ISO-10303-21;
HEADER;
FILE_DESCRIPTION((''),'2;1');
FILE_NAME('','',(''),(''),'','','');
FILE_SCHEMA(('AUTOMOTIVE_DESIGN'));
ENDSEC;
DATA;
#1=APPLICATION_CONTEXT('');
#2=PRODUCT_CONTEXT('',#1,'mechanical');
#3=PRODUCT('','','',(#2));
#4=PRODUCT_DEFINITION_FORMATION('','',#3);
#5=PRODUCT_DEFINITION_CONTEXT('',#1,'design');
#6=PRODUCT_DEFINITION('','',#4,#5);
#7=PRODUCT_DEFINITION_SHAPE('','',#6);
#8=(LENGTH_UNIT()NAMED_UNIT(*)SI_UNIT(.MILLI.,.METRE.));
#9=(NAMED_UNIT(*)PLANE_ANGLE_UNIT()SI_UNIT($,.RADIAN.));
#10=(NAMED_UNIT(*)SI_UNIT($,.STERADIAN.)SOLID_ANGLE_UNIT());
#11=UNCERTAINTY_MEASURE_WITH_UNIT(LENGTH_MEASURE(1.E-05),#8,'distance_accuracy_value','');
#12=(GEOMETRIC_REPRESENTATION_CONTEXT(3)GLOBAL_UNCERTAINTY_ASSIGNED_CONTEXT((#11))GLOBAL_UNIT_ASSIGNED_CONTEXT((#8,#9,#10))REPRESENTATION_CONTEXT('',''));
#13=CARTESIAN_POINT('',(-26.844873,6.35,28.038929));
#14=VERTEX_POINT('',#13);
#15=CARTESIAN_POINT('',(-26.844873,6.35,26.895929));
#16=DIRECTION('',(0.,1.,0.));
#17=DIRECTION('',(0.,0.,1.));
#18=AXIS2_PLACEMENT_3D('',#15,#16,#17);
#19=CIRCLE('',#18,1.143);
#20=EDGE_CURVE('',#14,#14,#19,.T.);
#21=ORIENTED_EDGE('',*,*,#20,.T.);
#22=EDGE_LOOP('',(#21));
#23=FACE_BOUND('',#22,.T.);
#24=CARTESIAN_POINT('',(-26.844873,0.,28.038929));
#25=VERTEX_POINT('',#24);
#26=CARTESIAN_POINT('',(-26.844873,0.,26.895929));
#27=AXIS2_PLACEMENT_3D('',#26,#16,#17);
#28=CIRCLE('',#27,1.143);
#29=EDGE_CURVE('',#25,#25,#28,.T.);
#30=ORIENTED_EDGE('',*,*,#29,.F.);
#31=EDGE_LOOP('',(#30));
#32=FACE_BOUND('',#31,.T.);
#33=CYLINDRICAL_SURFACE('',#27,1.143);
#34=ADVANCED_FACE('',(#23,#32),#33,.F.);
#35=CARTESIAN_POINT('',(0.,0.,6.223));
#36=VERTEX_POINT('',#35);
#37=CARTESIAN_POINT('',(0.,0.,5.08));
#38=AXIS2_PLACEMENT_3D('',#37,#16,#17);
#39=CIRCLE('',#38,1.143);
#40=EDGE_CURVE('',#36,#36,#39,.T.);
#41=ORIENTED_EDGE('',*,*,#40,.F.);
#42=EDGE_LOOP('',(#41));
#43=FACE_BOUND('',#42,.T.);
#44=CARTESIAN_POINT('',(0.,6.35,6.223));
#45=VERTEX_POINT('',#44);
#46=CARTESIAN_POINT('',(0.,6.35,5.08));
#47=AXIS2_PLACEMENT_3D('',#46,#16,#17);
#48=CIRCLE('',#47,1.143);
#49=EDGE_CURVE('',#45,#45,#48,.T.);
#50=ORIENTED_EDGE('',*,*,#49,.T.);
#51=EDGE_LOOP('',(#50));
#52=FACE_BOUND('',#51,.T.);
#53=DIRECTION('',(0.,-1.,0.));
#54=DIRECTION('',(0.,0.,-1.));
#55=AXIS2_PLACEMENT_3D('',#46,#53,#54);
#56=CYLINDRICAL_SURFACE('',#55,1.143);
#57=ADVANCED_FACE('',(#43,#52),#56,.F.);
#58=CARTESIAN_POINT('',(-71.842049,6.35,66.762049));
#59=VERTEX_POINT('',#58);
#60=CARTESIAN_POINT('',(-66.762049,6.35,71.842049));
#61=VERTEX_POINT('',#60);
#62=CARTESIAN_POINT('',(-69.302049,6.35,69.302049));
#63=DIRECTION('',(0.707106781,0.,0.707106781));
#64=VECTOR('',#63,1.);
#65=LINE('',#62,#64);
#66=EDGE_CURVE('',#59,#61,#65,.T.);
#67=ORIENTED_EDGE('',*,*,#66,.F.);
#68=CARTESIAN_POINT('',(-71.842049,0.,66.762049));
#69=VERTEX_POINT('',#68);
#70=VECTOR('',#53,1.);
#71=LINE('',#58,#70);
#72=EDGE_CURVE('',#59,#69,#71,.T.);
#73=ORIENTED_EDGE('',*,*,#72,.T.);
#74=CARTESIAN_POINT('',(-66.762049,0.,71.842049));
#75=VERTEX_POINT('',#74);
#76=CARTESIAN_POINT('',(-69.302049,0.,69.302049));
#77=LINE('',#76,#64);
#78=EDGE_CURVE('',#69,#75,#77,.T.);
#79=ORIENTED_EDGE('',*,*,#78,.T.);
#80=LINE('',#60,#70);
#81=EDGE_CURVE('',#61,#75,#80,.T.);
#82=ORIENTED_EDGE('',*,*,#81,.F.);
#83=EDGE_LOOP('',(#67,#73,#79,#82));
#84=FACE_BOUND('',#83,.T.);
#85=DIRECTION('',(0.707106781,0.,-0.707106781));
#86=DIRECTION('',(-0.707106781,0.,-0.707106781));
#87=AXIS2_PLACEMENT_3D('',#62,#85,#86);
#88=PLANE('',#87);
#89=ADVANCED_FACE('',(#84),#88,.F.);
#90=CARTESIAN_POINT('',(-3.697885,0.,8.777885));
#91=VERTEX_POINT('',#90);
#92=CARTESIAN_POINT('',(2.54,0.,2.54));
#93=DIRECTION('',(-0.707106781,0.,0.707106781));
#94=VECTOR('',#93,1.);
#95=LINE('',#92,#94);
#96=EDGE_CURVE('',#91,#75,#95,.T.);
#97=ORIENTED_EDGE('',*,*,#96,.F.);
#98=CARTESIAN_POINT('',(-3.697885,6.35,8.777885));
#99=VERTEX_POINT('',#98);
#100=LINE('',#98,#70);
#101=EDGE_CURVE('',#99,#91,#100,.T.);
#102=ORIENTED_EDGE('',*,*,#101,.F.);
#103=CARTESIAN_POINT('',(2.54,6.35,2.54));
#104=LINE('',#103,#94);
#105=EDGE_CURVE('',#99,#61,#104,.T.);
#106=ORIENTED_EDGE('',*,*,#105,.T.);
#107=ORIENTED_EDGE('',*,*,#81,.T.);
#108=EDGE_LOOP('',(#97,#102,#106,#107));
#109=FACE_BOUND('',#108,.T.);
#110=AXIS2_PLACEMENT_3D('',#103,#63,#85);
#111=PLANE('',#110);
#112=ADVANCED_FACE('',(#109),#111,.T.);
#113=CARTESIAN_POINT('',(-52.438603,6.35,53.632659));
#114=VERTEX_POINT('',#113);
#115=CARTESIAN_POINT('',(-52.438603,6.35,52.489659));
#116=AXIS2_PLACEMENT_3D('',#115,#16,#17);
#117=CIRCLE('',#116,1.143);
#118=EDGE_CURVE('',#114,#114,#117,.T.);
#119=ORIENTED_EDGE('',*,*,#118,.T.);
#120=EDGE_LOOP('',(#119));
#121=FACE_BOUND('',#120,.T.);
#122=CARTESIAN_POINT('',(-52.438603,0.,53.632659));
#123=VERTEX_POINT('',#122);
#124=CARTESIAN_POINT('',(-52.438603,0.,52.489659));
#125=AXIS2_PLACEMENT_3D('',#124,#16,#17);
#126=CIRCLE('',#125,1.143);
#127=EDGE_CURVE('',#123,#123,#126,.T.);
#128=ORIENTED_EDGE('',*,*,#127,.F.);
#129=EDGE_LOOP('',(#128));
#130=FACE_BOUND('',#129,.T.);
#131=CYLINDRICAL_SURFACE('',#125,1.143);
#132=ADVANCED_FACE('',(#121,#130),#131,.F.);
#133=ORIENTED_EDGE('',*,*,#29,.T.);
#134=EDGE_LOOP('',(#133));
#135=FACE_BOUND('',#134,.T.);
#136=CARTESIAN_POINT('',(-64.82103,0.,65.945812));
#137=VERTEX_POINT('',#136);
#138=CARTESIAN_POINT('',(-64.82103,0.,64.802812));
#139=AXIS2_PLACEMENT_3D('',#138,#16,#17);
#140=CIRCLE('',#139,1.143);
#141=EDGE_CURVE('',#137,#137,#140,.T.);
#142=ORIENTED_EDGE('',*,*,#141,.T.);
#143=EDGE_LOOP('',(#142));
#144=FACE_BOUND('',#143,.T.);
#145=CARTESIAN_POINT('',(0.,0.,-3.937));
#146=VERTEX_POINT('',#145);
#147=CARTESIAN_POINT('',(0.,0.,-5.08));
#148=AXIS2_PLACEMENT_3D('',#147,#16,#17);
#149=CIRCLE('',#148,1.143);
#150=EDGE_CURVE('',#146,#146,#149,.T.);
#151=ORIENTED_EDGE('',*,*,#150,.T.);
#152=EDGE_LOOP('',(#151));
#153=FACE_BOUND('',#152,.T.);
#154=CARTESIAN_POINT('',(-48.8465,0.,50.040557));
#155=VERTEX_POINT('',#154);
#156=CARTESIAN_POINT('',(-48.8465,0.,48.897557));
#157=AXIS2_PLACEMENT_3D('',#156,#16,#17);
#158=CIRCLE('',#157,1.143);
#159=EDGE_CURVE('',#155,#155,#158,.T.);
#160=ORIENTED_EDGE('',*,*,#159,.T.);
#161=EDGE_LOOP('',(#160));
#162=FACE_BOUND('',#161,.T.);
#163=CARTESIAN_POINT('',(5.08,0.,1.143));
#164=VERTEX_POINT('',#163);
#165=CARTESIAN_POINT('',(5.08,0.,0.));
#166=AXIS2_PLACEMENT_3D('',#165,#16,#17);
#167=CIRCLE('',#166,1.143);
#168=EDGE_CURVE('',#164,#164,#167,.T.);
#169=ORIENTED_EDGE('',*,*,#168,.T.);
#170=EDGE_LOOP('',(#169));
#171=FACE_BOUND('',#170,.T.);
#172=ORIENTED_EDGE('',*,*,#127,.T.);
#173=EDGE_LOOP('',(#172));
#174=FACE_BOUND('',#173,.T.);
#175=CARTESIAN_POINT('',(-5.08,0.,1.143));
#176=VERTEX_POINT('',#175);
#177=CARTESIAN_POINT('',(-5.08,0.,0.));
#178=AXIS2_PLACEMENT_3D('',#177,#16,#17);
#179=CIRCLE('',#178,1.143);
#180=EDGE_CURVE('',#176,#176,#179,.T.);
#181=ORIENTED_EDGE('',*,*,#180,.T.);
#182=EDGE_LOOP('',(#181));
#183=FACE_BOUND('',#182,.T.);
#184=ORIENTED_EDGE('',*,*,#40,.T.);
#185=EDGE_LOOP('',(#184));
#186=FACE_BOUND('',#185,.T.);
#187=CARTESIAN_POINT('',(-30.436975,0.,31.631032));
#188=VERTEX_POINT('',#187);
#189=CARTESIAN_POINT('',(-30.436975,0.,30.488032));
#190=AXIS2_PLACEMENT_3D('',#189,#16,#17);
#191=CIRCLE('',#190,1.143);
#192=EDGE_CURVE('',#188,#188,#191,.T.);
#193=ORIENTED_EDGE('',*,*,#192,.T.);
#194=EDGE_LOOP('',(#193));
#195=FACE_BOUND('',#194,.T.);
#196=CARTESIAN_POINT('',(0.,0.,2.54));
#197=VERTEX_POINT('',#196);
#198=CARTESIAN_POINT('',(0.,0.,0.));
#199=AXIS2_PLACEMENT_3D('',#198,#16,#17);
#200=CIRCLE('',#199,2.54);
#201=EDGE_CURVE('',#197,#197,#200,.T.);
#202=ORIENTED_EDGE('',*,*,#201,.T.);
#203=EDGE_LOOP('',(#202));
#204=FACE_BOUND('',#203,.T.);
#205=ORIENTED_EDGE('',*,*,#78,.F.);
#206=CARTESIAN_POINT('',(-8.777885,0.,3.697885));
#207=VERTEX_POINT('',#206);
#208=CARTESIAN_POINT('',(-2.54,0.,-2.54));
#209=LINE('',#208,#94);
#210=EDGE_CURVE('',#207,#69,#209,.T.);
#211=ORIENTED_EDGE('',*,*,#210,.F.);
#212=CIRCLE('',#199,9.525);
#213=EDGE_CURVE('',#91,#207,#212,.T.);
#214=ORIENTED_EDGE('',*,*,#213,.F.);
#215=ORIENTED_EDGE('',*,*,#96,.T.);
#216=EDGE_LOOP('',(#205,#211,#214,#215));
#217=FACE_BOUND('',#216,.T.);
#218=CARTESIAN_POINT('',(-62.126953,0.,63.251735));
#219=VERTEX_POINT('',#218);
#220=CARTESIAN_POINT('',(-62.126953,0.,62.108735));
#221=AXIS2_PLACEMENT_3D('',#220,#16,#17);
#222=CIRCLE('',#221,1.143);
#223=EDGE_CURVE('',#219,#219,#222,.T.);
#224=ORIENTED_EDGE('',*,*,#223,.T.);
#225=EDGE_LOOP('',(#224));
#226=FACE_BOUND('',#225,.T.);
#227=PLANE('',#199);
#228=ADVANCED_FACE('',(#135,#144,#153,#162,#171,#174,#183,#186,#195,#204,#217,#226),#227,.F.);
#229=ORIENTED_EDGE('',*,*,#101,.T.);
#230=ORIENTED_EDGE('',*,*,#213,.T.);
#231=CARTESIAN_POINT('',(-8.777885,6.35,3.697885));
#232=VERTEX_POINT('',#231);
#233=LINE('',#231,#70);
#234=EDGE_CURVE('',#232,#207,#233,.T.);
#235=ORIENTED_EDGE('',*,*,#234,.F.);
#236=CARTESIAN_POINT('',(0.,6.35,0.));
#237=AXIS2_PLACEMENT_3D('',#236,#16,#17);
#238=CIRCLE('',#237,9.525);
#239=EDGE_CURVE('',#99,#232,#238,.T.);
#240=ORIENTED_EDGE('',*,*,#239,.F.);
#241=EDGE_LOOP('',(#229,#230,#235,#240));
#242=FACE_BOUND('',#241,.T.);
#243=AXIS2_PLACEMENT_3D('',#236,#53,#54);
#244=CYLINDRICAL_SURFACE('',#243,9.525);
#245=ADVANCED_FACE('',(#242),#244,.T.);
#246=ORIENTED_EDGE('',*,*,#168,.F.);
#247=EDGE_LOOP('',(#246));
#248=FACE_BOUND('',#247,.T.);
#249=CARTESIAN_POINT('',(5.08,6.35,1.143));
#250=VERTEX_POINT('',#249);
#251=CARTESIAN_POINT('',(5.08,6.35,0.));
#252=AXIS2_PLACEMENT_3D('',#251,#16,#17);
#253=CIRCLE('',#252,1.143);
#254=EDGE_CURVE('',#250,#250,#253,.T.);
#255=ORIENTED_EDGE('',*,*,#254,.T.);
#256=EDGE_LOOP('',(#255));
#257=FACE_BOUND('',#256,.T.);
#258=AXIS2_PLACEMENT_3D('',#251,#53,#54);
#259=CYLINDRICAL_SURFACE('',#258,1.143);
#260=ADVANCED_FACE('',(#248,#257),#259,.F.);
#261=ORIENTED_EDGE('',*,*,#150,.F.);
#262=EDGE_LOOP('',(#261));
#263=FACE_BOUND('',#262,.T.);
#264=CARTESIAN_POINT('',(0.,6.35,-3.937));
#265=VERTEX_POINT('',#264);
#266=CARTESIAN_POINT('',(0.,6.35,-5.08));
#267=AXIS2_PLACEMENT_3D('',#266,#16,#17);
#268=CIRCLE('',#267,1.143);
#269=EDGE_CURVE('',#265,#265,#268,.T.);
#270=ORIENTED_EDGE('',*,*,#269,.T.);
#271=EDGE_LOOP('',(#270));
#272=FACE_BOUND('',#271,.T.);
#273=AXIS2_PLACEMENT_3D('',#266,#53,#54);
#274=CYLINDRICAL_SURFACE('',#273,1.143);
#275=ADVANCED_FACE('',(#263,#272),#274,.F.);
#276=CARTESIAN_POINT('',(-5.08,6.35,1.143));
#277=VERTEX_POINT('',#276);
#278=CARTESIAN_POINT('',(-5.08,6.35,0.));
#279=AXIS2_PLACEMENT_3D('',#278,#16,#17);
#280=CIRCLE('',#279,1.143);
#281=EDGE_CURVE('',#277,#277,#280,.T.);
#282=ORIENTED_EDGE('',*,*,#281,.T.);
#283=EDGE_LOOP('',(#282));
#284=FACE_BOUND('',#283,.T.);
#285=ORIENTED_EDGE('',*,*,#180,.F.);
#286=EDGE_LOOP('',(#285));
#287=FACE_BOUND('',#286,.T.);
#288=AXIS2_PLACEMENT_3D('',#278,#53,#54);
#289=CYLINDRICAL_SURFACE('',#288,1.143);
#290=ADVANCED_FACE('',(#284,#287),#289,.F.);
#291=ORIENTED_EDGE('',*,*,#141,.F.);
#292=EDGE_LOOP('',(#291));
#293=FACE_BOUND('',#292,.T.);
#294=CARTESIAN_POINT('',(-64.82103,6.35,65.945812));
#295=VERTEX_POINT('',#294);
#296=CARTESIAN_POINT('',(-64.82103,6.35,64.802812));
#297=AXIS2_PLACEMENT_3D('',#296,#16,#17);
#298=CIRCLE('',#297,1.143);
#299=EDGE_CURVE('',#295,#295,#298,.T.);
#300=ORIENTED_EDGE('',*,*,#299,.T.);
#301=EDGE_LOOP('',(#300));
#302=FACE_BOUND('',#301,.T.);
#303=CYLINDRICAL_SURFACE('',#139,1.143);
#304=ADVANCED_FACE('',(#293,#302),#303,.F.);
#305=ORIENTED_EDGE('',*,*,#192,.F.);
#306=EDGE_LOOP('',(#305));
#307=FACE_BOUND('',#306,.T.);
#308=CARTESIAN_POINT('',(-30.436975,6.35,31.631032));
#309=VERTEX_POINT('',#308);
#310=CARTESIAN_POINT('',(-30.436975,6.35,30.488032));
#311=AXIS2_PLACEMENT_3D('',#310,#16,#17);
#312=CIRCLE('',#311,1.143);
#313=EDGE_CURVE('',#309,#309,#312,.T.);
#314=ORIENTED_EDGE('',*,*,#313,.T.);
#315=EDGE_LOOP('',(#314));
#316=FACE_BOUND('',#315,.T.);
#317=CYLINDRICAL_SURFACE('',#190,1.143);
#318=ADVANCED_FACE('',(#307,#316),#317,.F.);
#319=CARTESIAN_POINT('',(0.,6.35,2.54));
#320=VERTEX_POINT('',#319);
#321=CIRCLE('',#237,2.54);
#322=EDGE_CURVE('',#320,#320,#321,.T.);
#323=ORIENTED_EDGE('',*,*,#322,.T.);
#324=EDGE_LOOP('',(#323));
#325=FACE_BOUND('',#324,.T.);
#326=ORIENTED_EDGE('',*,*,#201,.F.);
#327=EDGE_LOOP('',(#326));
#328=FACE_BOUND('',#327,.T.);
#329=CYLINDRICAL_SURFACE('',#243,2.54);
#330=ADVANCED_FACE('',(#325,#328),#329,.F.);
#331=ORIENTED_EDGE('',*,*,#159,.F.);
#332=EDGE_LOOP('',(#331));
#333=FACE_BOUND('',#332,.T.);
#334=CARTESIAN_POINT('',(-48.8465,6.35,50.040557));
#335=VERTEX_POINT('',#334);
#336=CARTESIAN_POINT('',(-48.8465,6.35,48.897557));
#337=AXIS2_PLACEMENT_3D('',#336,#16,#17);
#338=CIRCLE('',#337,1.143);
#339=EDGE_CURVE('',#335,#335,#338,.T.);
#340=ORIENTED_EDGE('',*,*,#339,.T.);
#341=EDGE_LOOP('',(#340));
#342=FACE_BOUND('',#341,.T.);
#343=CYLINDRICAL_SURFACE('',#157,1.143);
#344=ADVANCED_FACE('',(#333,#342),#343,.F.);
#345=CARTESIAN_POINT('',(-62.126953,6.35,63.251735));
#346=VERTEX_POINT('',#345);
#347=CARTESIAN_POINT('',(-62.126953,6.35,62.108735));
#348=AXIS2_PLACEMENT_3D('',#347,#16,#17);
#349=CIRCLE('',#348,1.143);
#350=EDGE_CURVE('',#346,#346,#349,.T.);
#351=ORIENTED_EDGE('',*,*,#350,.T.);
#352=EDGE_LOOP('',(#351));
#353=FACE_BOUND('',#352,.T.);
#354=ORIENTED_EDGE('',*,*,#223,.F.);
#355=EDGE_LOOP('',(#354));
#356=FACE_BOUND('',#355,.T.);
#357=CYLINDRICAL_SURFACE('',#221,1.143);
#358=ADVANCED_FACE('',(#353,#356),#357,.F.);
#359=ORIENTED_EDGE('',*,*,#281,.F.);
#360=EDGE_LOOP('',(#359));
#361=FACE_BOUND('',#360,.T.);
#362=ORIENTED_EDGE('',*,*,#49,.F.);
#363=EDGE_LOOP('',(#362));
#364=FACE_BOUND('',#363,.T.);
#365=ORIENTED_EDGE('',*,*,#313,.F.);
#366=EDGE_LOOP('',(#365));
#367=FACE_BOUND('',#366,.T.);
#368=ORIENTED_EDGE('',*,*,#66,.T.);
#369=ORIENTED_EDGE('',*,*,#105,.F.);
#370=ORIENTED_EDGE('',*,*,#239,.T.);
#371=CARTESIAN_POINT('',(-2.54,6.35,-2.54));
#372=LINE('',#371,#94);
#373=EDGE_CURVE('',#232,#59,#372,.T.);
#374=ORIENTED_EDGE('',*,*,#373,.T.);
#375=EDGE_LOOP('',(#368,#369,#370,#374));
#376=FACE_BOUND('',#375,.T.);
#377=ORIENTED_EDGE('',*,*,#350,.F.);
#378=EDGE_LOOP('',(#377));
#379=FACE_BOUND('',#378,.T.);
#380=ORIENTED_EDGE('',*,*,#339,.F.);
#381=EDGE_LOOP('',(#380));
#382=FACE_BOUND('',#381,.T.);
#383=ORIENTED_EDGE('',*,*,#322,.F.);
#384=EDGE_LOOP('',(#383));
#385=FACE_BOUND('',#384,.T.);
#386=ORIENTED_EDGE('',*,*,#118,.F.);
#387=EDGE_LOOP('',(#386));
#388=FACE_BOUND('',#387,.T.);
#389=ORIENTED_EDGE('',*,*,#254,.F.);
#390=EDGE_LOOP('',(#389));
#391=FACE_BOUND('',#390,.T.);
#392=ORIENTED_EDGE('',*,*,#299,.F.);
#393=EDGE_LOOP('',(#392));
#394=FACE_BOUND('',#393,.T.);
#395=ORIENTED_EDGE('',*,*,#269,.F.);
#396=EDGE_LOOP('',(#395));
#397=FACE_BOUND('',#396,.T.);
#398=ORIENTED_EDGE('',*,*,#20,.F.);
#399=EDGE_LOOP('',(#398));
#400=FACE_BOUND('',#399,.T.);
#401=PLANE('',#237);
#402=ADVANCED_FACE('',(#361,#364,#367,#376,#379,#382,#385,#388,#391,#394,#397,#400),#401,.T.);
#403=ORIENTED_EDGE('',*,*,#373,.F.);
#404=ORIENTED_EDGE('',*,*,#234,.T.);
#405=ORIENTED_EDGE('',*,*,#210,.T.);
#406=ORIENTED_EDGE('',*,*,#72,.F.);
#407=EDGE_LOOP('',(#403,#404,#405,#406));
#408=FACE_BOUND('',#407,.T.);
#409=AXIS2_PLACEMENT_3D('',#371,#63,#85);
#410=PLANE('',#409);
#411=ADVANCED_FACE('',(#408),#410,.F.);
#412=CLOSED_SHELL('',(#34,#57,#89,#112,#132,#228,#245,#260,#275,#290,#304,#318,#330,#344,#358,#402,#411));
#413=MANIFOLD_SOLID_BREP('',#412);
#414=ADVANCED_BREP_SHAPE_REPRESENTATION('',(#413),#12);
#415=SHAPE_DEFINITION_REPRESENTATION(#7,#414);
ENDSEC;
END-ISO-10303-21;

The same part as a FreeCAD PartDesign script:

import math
import FreeCAD as App
import Part
import Sketcher
from FreeCAD import Vector
Q = App.Units.Quantity

doc = App.newDocument("Part")
body = doc.addObject("PartDesign::Body", "Body")

# Sketch on XZ plane
sketch1 = doc.addObject("Sketcher::SketchObject", "Sketch")
body.addObject(sketch1)
sketch1.AttachmentSupport = (doc.XZ_Plane, [""])
sketch1.MapMode = "FlatFace"
sketch1.addGeometry([
    Part.Circle(Vector(0, 0, 0), Vector(0, 0, 1), 9.5),  # 0
    Part.Circle(Vector(0, 5.1, 0), Vector(0, 0, 1), 1.1),  # 1
    Part.Circle(Vector(-5.1, 0, 0), Vector(0, 0, 1), 1.1),  # 2
    Part.Circle(Vector(0, 0, 0), Vector(0, 0, 1), 2.5),  # 3
    Part.Circle(Vector(5.1, 0, 0), Vector(0, 0, 1), 1.1),  # 4
    Part.Circle(Vector(0, -5.1, 0), Vector(0, 0, 1), 1.1),  # 5
], False)
sketch1.addConstraint([
    Sketcher.Constraint("Coincident", 0, 3, -1, 1),
    Sketcher.Constraint("Coincident", 3, 3, -1, 1),
    Sketcher.Constraint("Equal", 1, 2),
    Sketcher.Constraint("Equal", 2, 4),
    Sketcher.Constraint("Equal", 4, 5),
    Sketcher.Constraint("Symmetric", 2, 3, 4, 3, -1, 1),
    Sketcher.Constraint("Symmetric", 1, 3, 5, 3, -1, 1),
    Sketcher.Constraint("PointOnObject", 1, 3, -2),
    Sketcher.Constraint("PointOnObject", 2, 3, -1),
    Sketcher.Constraint("Diameter", 3, Q("0.2 in")),
    Sketcher.Constraint("Diameter", 0, Q("0.75 in")),
    Sketcher.Constraint("Diameter", 1, Q("0.09 in")),
    Sketcher.Constraint("DistanceY", -1, 1, 1, 3, Q("0.2 in")),
    Sketcher.Constraint("DistanceX", 2, 3, -1, 1, Q("0.2 in")),
])
pad1 = doc.addObject("PartDesign::Pad", "Pad")
body.addObject(pad1)
pad1.Profile = sketch1
pad1.Length = Q("0.25 in")
pad1.Reversed = True

# Sketch on XZ plane
sketch2 = doc.addObject("Sketcher::SketchObject", "Sketch001")
body.addObject(sketch2)
sketch2.AttachmentSupport = (doc.XZ_Plane, [""])
sketch2.MapMode = "FlatFace"
sketch2.addGeometry([
    Part.ArcOfCircle(Part.Circle(Vector(0, 0, 0), Vector(0, 0, 1), 10), math.radians(113), math.radians(157)),
    Part.LineSegment(Vector(-9, 4, 0), Vector(-72, 67, 0)),
    Part.LineSegment(Vector(-72, 67, 0), Vector(-67, 72, 0)),
    Part.LineSegment(Vector(-67, 72, 0), Vector(-4, 9, 0)),
], False)
sketch2.addConstraint([
    Sketcher.Constraint("Coincident", 0, 2, 1, 1),
    Sketcher.Constraint("Coincident", 1, 2, 2, 1),
    Sketcher.Constraint("Coincident", 2, 2, 3, 1),
    Sketcher.Constraint("Coincident", 3, 2, 0, 1),
    Sketcher.Constraint("Coincident", 0, 3, -1, 1),
    Sketcher.Constraint("Perpendicular", 1, 2),
    Sketcher.Constraint("Perpendicular", 2, 3),
    Sketcher.Constraint("Equal", 1, 3),
    Sketcher.Constraint("Angle", 1, Q("135 deg")),
    Sketcher.Constraint("Radius", 0, Q("0.375 in")),
    Sketcher.Constraint("DistanceX", 1, 2, 2, 2, Q("0.2 in")),
    Sketcher.Constraint("DistanceX", 1, 2, -1, 1, 71.842049),
])
pad2 = doc.addObject("PartDesign::Pad", "Pad001")
body.addObject(pad2)
pad2.Profile = sketch2
pad2.Length = Q("0.25 in")
pad2.Reversed = True

# Sketch on XZ plane
sketch3 = doc.addObject("Sketcher::SketchObject", "Sketch002")
body.addObject(sketch3)
sketch3.AttachmentSupport = (doc.XZ_Plane, [""])
sketch3.MapMode = "FlatFace"
sketch3.AttachmentOffset = App.Placement(Vector(0, 0, -0.25 * 25.4), App.Rotation())
sketch3.addGeometry([
    Part.Circle(Vector(-64.8, 64.8, 0), Vector(0, 0, 1), 1.1),  # 0
    Part.Circle(Vector(-62.1, 62.1, 0), Vector(0, 0, 1), 1.1),  # 1
    Part.Circle(Vector(-52.4, 52.5, 0), Vector(0, 0, 1), 1.1),  # 2
    Part.Circle(Vector(-48.8, 48.9, 0), Vector(0, 0, 1), 1.1),  # 3
    Part.Circle(Vector(-30.4, 30.5, 0), Vector(0, 0, 1), 1.1),  # 4
    Part.Circle(Vector(-26.8, 26.9, 0), Vector(0, 0, 1), 1.1),  # 5
], False)
sketch3.addConstraint([
    Sketcher.Constraint("Equal", 0, 1),
    Sketcher.Constraint("Equal", 1, 2),
    Sketcher.Constraint("Equal", 2, 3),
    Sketcher.Constraint("Equal", 3, 4),
    Sketcher.Constraint("Equal", 4, 5),
    Sketcher.Constraint("Diameter", 0, Q("0.09 in")),
    Sketcher.Constraint("DistanceX", 3, 3, -1, 1, 48.8465),
    Sketcher.Constraint("DistanceX", 0, 3, -1, 1, 64.82103),
    Sketcher.Constraint("DistanceY", -1, 1, 2, 3, 52.489659),
    Sketcher.Constraint("DistanceY", -1, 1, 4, 3, 30.488032),
    Sketcher.Constraint("DistanceY", -1, 1, 5, 3, 26.895929),
    Sketcher.Constraint("DistanceX", 1, 3, 2, 3, 9.68835),
    Sketcher.Constraint("DistanceY", 3, 3, 1, 3, 13.211179),
    Sketcher.Constraint("DistanceY", 4, 3, 0, 3, 34.314781),
    Sketcher.Constraint("DistanceX", 2, 3, 5, 3, 25.59373),
    Sketcher.Constraint("DistanceX", 1, 3, -1, 1, 62.126953),
    Sketcher.Constraint("DistanceY", -1, 1, 1, 3, 62.108735),
    Sketcher.Constraint("DistanceX", 4, 3, -1, 1, 30.436975),
])
pocket1 = doc.addObject("PartDesign::Pocket", "Pocket")
body.addObject(pocket1)
pocket1.Profile = sketch3
pocket1.Length = Q("0.25 in")
pocket1.Reversed = True

doc.recompute()
